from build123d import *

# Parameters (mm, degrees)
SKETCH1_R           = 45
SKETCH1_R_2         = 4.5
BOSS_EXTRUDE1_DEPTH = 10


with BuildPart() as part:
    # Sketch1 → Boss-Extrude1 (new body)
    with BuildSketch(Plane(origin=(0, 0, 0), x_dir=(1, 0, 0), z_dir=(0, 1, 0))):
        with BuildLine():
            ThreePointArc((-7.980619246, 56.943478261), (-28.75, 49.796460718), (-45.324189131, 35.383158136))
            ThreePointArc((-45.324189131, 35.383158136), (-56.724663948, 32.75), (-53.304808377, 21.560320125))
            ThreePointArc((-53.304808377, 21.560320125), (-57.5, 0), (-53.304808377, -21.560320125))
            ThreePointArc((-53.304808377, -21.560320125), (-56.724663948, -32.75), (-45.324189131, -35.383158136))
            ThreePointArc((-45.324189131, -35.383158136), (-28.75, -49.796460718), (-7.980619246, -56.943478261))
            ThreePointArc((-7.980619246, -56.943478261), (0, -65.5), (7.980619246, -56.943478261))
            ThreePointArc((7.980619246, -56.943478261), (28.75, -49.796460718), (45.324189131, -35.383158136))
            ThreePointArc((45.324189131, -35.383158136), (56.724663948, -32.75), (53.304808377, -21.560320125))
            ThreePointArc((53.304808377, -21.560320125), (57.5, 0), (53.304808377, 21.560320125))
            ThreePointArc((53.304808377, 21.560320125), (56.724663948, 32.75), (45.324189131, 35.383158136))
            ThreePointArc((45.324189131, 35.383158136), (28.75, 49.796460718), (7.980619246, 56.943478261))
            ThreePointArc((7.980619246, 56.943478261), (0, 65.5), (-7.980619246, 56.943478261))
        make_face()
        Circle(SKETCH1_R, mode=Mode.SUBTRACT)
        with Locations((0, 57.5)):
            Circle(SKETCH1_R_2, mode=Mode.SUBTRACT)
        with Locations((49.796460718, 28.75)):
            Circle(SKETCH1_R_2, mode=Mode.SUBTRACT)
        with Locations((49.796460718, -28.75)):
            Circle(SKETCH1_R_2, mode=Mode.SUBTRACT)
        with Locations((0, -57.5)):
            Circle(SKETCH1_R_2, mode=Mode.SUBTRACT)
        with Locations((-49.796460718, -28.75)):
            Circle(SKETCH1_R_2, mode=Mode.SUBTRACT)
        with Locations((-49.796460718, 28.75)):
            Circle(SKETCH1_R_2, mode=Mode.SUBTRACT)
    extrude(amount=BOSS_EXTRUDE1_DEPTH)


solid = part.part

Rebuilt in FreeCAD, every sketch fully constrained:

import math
import FreeCAD as App
import Part
import Sketcher
Q = App.Units.Quantity

doc = App.newDocument("Part")
body = doc.addObject("PartDesign::Body", "Body")

# Sketch on XZ plane
sketch1 = body.newObject("Sketcher::SketchObject", "Sketch")
sketch1.AttachmentSupport = (doc.getObject("XZ_Plane"), [""])
sketch1.MapMode = "FlatFace"
sketch1.addGeometry(Part.ArcOfCircle(Part.Circle(App.Vector(0, 0, 0), App.Vector(0, 0, 1), 57.5), math.radians(-142), math.radians(-98)), False)
sketch1.addGeometry(Part.ArcOfCircle(Part.Circle(App.Vector(-49.8, -28.8, 0), App.Vector(0, 0, 1), 8), math.radians(116), math.radians(304)), False)
sketch1.addGeometry(Part.ArcOfCircle(Part.Circle(App.Vector(0, 0, 0), App.Vector(0, 0, 1), 57.5), math.radians(158), math.radians(202)), False)
sketch1.addGeometry(Part.ArcOfCircle(Part.Circle(App.Vector(-49.8, 28.8, 0), App.Vector(0, 0, 1), 8), math.radians(56), math.radians(244)), False)
sketch1.addGeometry(Part.ArcOfCircle(Part.Circle(App.Vector(0, 0, 0), App.Vector(0, 0, 1), 57.5), math.radians(98), math.radians(142)), False)
sketch1.addGeometry(Part.ArcOfCircle(Part.Circle(App.Vector(0, 57.5, 0), App.Vector(0, 0, 1), 8), math.radians(-4), math.radians(184)), False)
sketch1.addGeometry(Part.ArcOfCircle(Part.Circle(App.Vector(0, 0, 0), App.Vector(0, 0, 1), 57.5), math.radians(38), math.radians(82)), False)
sketch1.addGeometry(Part.ArcOfCircle(Part.Circle(App.Vector(49.8, 28.8, 0), App.Vector(0, 0, 1), 8), math.radians(-64), math.radians(124)), False)
sketch1.addGeometry(Part.ArcOfCircle(Part.Circle(App.Vector(0, 0, 0), App.Vector(0, 0, 1), 57.5), math.radians(-22), math.radians(22)), False)
sketch1.addGeometry(Part.ArcOfCircle(Part.Circle(App.Vector(49.8, -28.8, 0), App.Vector(0, 0, 1), 8), math.radians(-124), math.radians(64)), False)
sketch1.addGeometry(Part.ArcOfCircle(Part.Circle(App.Vector(0, 0, 0), App.Vector(0, 0, 1), 57.5), math.radians(-82), math.radians(-38)), False)
sketch1.addGeometry(Part.ArcOfCircle(Part.Circle(App.Vector(0, -57.5, 0), App.Vector(0, 0, 1), 8), math.radians(176), math.radians(364)), False)
sketch1.addGeometry(Part.Circle(App.Vector(-49.8, 28.8, 0), App.Vector(0, 0, 1), 4.5), False)
sketch1.addGeometry(Part.Circle(App.Vector(0, 57.5, 0), App.Vector(0, 0, 1), 4.5), False)
sketch1.addGeometry(Part.Circle(App.Vector(49.8, 28.8, 0), App.Vector(0, 0, 1), 4.5), False)
sketch1.addGeometry(Part.Circle(App.Vector(-49.8, -28.8, 0), App.Vector(0, 0, 1), 4.5), False)
sketch1.addGeometry(Part.Circle(App.Vector(0, 0, 0), App.Vector(0, 0, 1), 45), False)
sketch1.addGeometry(Part.Circle(App.Vector(49.8, -28.8, 0), App.Vector(0, 0, 1), 4.5), False)
sketch1.addGeometry(Part.Circle(App.Vector(0, -57.5, 0), App.Vector(0, 0, 1), 4.5), False)
sketch1.addConstraint(Sketcher.Constraint("Coincident", 0, 1, 1, 2))
sketch1.addConstraint(Sketcher.Constraint("Coincident", 1, 1, 2, 2))
sketch1.addConstraint(Sketcher.Constraint("Coincident", 2, 1, 3, 2))
sketch1.addConstraint(Sketcher.Constraint("Coincident", 3, 1, 4, 2))
sketch1.addConstraint(Sketcher.Constraint("Coincident", 4, 1, 5, 2))
sketch1.addConstraint(Sketcher.Constraint("Coincident", 5, 1, 6, 2))
sketch1.addConstraint(Sketcher.Constraint("Coincident", 6, 1, 7, 2))
sketch1.addConstraint(Sketcher.Constraint("Coincident", 7, 1, 8, 2))
sketch1.addConstraint(Sketcher.Constraint("Coincident", 8, 1, 9, 2))
sketch1.addConstraint(Sketcher.Constraint("Coincident", 9, 1, 10, 2))
sketch1.addConstraint(Sketcher.Constraint("Coincident", 10, 1, 11, 2))
sketch1.addConstraint(Sketcher.Constraint("Coincident", 11, 1, 0, 2))
sketch1.addConstraint(Sketcher.Constraint("Coincident", 0, 3, -1, 1))
sketch1.addConstraint(Sketcher.Constraint("Coincident", 2, 3, -1, 1))
sketch1.addConstraint(Sketcher.Constraint("Coincident", 4, 3, -1, 1))
sketch1.addConstraint(Sketcher.Constraint("Coincident", 6, 3, -1, 1))
sketch1.addConstraint(Sketcher.Constraint("Coincident", 8, 3, -1, 1))
sketch1.addConstraint(Sketcher.Constraint("Coincident", 10, 3, -1, 1))
sketch1.addConstraint(Sketcher.Constraint("Coincident", 16, 3, -1, 1))
sketch1.addConstraint(Sketcher.Constraint("Coincident", 12, 3, 3, 3))
sketch1.addConstraint(Sketcher.Constraint("Coincident", 13, 3, 5, 3))
sketch1.addConstraint(Sketcher.Constraint("Coincident", 14, 3, 7, 3))
sketch1.addConstraint(Sketcher.Constraint("Coincident", 15, 3, 1, 3))
sketch1.addConstraint(Sketcher.Constraint("Coincident", 17, 3, 9, 3))
sketch1.addConstraint(Sketcher.Constraint("Coincident", 18, 3, 11, 3))
sketch1.addConstraint(Sketcher.Constraint("Equal", 0, 2))
sketch1.addConstraint(Sketcher.Constraint("Equal", 1, 3))
sketch1.addConstraint(Sketcher.Constraint("Equal", 2, 4))
sketch1.addConstraint(Sketcher.Constraint("Equal", 3, 5))
sketch1.addConstraint(Sketcher.Constraint("Equal", 4, 6))
sketch1.addConstraint(Sketcher.Constraint("Equal", 5, 7))
sketch1.addConstraint(Sketcher.Constraint("Equal", 6, 8))
sketch1.addConstraint(Sketcher.Constraint("Equal", 7, 9))
sketch1.addConstraint(Sketcher.Constraint("Equal", 8, 10))
sketch1.addConstraint(Sketcher.Constraint("Equal", 9, 11))
sketch1.addConstraint(Sketcher.Constraint("Equal", 12, 13))
sketch1.addConstraint(Sketcher.Constraint("Equal", 13, 14))
sketch1.addConstraint(Sketcher.Constraint("Equal", 14, 15))
sketch1.addConstraint(Sketcher.Constraint("Equal", 15, 17))
sketch1.addConstraint(Sketcher.Constraint("Equal", 17, 18))
sketch1.addConstraint(Sketcher.Constraint("Symmetric", 1, 3, 7, 3, -1, 1))
sketch1.addConstraint(Sketcher.Constraint("Symmetric", 3, 3, 9, 3, -1, 1))
sketch1.addConstraint(Sketcher.Constraint("Symmetric", 5, 3, 11, 3, -1, 1))
sketch1.addConstraint(Sketcher.Constraint("Symmetric", 3, 3, 7, 3, -2))
sketch1.addConstraint(Sketcher.Constraint("PointOnObject", 5, 3, -2))
sketch1.addConstraint(Sketcher.Constraint("Diameter", 12, Q("9 mm")))
sketch1.addConstraint(Sketcher.Constraint("Diameter", 16, Q("90 mm")))
sketch1.addConstraint(Sketcher.Constraint("Radius", 1, Q("8 mm")))
sketch1.addConstraint(Sketcher.Constraint("Radius", 0, Q("57.5 mm")))
sketch1.addConstraint(Sketcher.Constraint("DistanceY", -1, 1, 5, 3, Q("57.5 mm")))
sketch1.addConstraint(Sketcher.Constraint("DistanceY", 1, 3, 3, 3, Q("57.5 mm")))
sketch1.addConstraint(Sketcher.Constraint("DistanceX", 1, 3, -1, 1, Q("49.796461 mm")))
pad1 = body.newObject("PartDesign::Pad", "Pad")
pad1.Profile = sketch1
pad1.Length = 10
pad1.Reversed = True

doc.recompute()
